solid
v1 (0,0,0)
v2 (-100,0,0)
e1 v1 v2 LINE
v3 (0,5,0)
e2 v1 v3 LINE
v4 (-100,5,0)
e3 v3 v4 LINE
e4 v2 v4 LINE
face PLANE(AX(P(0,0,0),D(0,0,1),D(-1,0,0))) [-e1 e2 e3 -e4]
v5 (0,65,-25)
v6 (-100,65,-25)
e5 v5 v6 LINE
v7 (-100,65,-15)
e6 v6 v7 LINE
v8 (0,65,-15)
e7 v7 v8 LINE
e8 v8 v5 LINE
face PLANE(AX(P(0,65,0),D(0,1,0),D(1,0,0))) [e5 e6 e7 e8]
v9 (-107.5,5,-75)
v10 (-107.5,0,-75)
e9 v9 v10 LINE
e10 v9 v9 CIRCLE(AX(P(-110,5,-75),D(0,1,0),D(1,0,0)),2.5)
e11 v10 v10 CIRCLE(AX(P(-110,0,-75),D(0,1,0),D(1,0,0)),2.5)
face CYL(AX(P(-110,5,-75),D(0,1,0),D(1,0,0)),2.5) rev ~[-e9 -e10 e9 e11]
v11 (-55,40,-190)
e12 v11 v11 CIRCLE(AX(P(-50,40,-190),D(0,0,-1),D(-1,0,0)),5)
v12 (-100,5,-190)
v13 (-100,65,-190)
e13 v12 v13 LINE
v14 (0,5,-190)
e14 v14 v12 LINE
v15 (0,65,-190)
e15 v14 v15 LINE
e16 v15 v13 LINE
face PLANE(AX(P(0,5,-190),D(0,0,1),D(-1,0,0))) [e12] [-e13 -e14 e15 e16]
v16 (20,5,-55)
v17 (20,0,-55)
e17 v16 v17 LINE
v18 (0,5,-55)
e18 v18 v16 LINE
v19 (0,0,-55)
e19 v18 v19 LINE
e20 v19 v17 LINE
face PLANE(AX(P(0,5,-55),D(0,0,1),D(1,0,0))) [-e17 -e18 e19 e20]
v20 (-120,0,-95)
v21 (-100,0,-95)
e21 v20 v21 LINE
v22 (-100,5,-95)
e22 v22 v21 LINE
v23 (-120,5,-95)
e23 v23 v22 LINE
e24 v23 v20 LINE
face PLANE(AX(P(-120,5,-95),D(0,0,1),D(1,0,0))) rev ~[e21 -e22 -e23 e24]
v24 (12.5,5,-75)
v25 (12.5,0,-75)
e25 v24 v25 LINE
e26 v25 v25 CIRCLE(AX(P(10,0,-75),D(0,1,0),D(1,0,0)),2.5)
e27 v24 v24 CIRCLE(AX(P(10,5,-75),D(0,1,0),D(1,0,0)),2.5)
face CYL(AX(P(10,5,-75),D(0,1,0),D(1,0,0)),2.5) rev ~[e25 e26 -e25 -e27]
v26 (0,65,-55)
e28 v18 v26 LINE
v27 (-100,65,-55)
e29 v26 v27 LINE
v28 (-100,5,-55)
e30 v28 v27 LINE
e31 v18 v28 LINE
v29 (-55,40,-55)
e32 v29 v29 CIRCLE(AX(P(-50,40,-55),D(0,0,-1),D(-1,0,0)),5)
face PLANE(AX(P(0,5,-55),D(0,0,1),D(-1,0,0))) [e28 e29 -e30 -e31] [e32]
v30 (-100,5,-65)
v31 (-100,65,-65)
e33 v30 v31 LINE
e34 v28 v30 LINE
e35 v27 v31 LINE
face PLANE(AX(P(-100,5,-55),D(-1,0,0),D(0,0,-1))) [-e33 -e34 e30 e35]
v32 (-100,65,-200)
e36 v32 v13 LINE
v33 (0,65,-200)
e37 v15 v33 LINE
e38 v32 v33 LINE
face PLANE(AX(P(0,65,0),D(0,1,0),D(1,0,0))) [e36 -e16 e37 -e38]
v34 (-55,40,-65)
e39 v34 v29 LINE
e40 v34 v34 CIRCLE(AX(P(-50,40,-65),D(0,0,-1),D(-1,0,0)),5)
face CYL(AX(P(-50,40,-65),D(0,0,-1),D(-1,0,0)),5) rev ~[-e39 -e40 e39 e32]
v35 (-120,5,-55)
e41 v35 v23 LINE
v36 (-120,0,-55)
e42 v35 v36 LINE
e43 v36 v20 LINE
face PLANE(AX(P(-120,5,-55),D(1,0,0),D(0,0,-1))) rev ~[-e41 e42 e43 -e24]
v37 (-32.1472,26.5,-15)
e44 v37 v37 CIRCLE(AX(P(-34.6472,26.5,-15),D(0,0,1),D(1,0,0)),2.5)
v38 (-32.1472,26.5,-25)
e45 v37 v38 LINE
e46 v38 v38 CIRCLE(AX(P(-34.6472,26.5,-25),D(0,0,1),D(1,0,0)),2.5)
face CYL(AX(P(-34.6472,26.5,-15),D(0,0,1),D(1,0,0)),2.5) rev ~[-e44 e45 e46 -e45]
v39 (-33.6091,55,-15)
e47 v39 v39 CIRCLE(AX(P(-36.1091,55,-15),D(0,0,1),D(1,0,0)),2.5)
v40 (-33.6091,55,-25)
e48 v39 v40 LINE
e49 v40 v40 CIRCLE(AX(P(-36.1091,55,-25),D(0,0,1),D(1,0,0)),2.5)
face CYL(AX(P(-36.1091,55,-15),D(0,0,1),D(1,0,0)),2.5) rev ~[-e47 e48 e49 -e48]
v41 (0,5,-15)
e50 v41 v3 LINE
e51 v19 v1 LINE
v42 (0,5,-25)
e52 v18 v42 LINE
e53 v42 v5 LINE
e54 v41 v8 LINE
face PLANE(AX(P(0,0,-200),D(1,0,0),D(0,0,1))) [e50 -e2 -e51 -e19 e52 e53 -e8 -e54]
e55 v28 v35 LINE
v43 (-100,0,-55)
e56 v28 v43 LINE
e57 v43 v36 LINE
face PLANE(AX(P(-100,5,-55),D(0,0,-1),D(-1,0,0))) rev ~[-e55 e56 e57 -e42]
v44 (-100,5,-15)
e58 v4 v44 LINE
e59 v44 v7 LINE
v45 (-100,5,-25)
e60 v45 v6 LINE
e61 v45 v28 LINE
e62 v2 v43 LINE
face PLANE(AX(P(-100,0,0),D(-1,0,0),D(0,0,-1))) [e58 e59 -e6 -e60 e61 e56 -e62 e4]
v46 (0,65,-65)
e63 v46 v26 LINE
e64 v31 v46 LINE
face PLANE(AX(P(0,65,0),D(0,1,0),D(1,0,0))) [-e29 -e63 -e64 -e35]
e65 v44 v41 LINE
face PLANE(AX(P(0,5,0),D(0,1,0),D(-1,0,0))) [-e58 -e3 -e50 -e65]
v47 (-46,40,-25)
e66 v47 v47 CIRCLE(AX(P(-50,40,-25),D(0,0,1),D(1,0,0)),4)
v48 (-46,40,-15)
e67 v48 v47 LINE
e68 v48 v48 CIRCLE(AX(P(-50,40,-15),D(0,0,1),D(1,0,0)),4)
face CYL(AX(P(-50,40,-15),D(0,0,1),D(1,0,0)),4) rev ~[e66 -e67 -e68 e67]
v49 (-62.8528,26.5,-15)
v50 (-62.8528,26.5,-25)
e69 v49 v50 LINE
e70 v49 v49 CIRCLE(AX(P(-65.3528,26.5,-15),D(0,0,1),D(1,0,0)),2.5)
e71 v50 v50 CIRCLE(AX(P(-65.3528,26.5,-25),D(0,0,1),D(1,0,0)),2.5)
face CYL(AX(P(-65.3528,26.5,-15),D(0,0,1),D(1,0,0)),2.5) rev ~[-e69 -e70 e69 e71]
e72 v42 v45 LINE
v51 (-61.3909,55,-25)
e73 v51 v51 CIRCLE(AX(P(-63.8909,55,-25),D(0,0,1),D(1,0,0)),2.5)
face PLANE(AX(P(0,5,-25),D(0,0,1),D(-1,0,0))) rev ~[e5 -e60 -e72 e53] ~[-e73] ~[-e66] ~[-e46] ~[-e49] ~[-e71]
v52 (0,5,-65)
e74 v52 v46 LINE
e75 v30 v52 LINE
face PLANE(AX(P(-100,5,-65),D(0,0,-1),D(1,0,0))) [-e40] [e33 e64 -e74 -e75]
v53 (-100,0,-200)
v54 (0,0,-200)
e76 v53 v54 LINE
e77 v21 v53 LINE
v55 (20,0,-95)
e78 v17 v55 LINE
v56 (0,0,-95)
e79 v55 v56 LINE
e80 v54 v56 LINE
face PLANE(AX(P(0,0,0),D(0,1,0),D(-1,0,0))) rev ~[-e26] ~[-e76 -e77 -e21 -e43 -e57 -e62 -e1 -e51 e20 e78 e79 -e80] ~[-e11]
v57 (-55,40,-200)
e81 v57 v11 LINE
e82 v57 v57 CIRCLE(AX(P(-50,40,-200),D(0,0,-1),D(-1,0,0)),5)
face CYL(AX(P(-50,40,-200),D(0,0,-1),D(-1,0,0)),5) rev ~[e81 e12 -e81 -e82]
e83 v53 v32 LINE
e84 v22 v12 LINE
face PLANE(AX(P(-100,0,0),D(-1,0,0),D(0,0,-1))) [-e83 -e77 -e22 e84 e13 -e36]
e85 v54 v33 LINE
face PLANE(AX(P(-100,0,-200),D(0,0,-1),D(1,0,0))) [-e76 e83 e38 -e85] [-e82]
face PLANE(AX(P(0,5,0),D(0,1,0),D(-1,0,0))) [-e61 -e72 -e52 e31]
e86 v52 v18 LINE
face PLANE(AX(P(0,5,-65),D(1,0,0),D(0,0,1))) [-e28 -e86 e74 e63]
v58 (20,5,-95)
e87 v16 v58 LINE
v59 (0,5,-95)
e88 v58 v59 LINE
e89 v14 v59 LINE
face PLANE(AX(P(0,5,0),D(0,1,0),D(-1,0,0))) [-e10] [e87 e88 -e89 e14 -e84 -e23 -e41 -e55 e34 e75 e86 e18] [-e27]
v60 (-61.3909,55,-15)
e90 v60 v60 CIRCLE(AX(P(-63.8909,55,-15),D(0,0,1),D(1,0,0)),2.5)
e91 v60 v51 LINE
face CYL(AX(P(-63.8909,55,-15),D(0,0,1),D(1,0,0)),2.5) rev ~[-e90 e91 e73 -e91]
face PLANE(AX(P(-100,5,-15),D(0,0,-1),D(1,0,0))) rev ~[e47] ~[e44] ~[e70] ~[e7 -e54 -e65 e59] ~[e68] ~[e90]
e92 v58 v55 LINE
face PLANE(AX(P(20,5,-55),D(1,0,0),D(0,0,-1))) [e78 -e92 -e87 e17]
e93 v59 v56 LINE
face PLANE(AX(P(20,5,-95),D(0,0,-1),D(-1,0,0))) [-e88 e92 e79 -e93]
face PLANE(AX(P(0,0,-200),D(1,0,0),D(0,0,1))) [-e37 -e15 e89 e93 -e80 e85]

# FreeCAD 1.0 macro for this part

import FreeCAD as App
import Part
import Sketcher
from FreeCAD import Vector


def add_polygon(sketch, points):
    """Adds a closed chain of lines whose ends are joined by coincident constraints."""
    first, n = sketch.GeometryCount, len(points)
    for a, b in zip(points, points[1:] + points[:1]):
        sketch.addGeometry(Part.LineSegment(App.Vector(*a, 0), App.Vector(*b, 0)), False)
    for i in range(n):
        sketch.addConstraint(Sketcher.Constraint("Coincident", first + i, 2, first + (i + 1) % n, 1))

doc = App.newDocument("Part")
body = doc.addObject("PartDesign::Body", "Body")

# Sketch on XZ plane
sketch1 = body.newObject("Sketcher::SketchObject", "Sketch")
sketch1.AttachmentSupport = (doc.getObject("XZ_Plane"), [""])
sketch1.MapMode = "FlatFace"
add_polygon(sketch1, [(-100, 0), (0, 0), (0, -200), (-100, -200)])  # lines 0-3
sketch1.addConstraint([
    Sketcher.Constraint("Horizontal", 0),
    Sketcher.Constraint("Vertical", 1),
    Sketcher.Constraint("Horizontal", 2),
    Sketcher.Constraint("Vertical", 3),
    Sketcher.Constraint("Coincident", 0, 2, -1, 1),
    Sketcher.Constraint("DistanceX", 0, 1, 0, 2, 100.0),
    Sketcher.Constraint("DistanceY", 1, 2, 1, 1, 200.0),
])
pad1 = body.newObject("PartDesign::Pad", "Pad")
pad1.Profile = sketch1
pad1.Length = 5
pad1.Reversed = True

# Sketch on XZ plane
sketch2 = body.newObject("Sketcher::SketchObject", "Sketch001")
sketch2.AttachmentSupport = (doc.getObject("XZ_Plane"), [""])
sketch2.MapMode = "FlatFace"
sketch2.AttachmentOffset = App.Placement(Vector(0, 0, -5), App.Rotation())
add_polygon(sketch2, [(0, -95), (0, -55), (20, -55), (20, -95)])  # lines 0-3
sketch2.addGeometry(Part.Circle(Vector(10, -75, 0), Vector(0, 0, 1), 2.5), False)  # 4
add_polygon(sketch2, [(-100, -55), (-100, -95), (-120, -95), (-120, -55)])  # lines 5-8
sketch2.addGeometry(Part.Circle(Vector(-110, -75, 0), Vector(0, 0, 1), 2.5), False)  # 9
sketch2.addConstraint([
    Sketcher.Constraint("Vertical", 0),
    Sketcher.Constraint("Horizontal", 1),
    Sketcher.Constraint("Vertical", 2),
    Sketcher.Constraint("Horizontal", 3),
    Sketcher.Constraint("Vertical", 5),
    Sketcher.Constraint("Horizontal", 6),
    Sketcher.Constraint("Vertical", 7),
    Sketcher.Constraint("Horizontal", 8),
    Sketcher.Constraint("Equal", 4, 9),
    Sketcher.Constraint("PointOnObject", 0, 2, -2),
    Sketcher.Constraint("Horizontal", 4, 3, 9, 3),
    Sketcher.Constraint("Horizontal", 3, 2, 5, 2),
    Sketcher.Constraint("Horizontal", 1, 2, 7, 2),
    Sketcher.Constraint("Equal", 3, 6),
    Sketcher.Constraint("Diameter", 4, 5.0),
    Sketcher.Constraint("DistanceX", 1, 1, 1, 2, 20.0),
    Sketcher.Constraint("DistanceY", 0, 1, 0, 2, 40.0),
    Sketcher.Constraint("DistanceY", 0, 2, -1, 1, 55.0),
    Sketcher.Constraint("DistanceY", 4, 3, 0, 2, 20.0),
    Sketcher.Constraint("DistanceX", -1, 1, 4, 3, 10.0),
    Sketcher.Constraint("DistanceX", 9, 3, -1, 1, 110.0),
    Sketcher.Constraint("DistanceX", 5, 2, -1, 1, 100.0),
])
pad2 = body.newObject("PartDesign::Pad", "Pad001")
pad2.Profile = sketch2
pad2.Length = 5

# Sketch on XZ plane
sketch3 = body.newObject("Sketcher::SketchObject", "Sketch002")
sketch3.AttachmentSupport = (doc.getObject("XZ_Plane"), [""])
sketch3.MapMode = "FlatFace"
sketch3.AttachmentOffset = App.Placement(Vector(0, 0, -5), App.Rotation())
add_polygon(sketch3, [(0, -200), (-100, -200), (-100, -190), (0, -190)])  # lines 0-3
add_polygon(sketch3, [(-100, -55), (0, -55), (0, -65), (-100, -65)])  # lines 4-7
add_polygon(sketch3, [(-100, -25), (-100, -15), (0, -15), (0, -25)])  # lines 8-11
sketch3.addConstraint([
    Sketcher.Constraint("Horizontal", 0),
    Sketcher.Constraint("Vertical", 1),
    Sketcher.Constraint("Horizontal", 2),
    Sketcher.Constraint("Vertical", 3),
    Sketcher.Constraint("Horizontal", 4),
    Sketcher.Constraint("Vertical", 5),
    Sketcher.Constraint("Horizontal", 6),
    Sketcher.Constraint("Vertical", 7),
    Sketcher.Constraint("Vertical", 8),
    Sketcher.Constraint("Horizontal", 9),
    Sketcher.Constraint("Vertical", 10),
    Sketcher.Constraint("Horizontal", 11),
    Sketcher.Constraint("PointOnObject", 2, 2, -2),
    Sketcher.Constraint("PointOnObject", 4, 2, -2),
    Sketcher.Constraint("PointOnObject", 9, 2, -2),
    Sketcher.Constraint("Vertical", 1, 2, 6, 2),
    Sketcher.Constraint("Vertical", 7, 2, 8, 2),
    Sketcher.Constraint("Equal", 3, 5),
    Sketcher.Constraint("Equal", 7, 8),
    Sketcher.Constraint("DistanceX", 0, 2, 0, 1, 100.0),
    Sketcher.Constraint("DistanceY", 1, 1, 1, 2, 10.0),
    Sketcher.Constraint("DistanceY", 2, 2, 5, 2, 125.0),
    Sketcher.Constraint("DistanceY", 4, 2, 10, 2, 30.0),
    Sketcher.Constraint("DistanceY", 0, 2, -1, 1, 200.0),
])
pad3 = body.newObject("PartDesign::Pad", "Pad002")
pad3.Profile = sketch3
pad3.Length = 60
pad3.Reversed = True

# Sketch on XY plane
sketch4 = body.newObject("Sketcher::SketchObject", "Sketch003")
sketch4.AttachmentSupport = (doc.getObject("XY_Plane"), [""])
sketch4.MapMode = "FlatFace"
sketch4.AttachmentOffset = App.Placement(Vector(0, 0, -200), App.Rotation())
sketch4.addGeometry(Part.Circle(Vector(-50, 40, 0), Vector(0, 0, 1), 5), False)
sketch4.addConstraint([
    Sketcher.Constraint("Diameter", 0, 10.0),
    Sketcher.Constraint("DistanceX", 0, 3, -1, 1, 50.0),
    Sketcher.Constraint("DistanceY", -1, 1, 0, 3, 40.0),
])
pocket1 = body.newObject("PartDesign::Pocket", "Pocket")
pocket1.Profile = sketch4
pocket1.Length = 10
pocket1.Reversed = True

# Sketch on XY plane
sketch5 = body.newObject("Sketcher::SketchObject", "Sketch004")
sketch5.AttachmentSupport = (doc.getObject("XY_Plane"), [""])
sketch5.MapMode = "FlatFace"
sketch5.AttachmentOffset = App.Placement(Vector(0, 0, -65), App.Rotation())
sketch5.addGeometry(Part.Circle(Vector(-50, 40, 0), Vector(0, 0, 1), 5), False)
sketch5.addConstraint([
    Sketcher.Constraint("Diameter", 0, 10.0),
    Sketcher.Constraint("DistanceX", 0, 3, -1, 1, 50.0),
    Sketcher.Constraint("DistanceY", -1, 1, 0, 3, 40.0),
])
pocket2 = body.newObject("PartDesign::Pocket", "Pocket001")
pocket2.Profile = sketch5
pocket2.Length = 10
pocket2.Reversed = True

# Sketch on XY plane
sketch6 = body.newObject("Sketcher::SketchObject", "Sketch005")
sketch6.AttachmentSupport = (doc.getObject("XY_Plane"), [""])
sketch6.MapMode = "FlatFace"
sketch6.AttachmentOffset = App.Placement(Vector(0, 0, -15), App.Rotation())
sketch6.addGeometry([
    Part.Circle(Vector(-50, 40, 0), Vector(0, 0, 1), 4),  # 0
    Part.Circle(Vector(-63.9, 55, 0), Vector(0, 0, 1), 2.5),  # 1
    Part.Circle(Vector(-36.1, 55, 0), Vector(0, 0, 1), 2.5),  # 2
    Part.Circle(Vector(-65.4, 26.5, 0), Vector(0, 0, 1), 2.5),  # 3
    Part.Circle(Vector(-34.6, 26.5, 0), Vector(0, 0, 1), 2.5),  # 4
], False)
sketch6.addConstraint([
    Sketcher.Constraint("Equal", 1, 2),
    Sketcher.Constraint("Equal", 2, 3),
    Sketcher.Constraint("Equal", 3, 4),
    Sketcher.Constraint("Horizontal", 1, 3, 2, 3),
    Sketcher.Constraint("Horizontal", 3, 3, 4, 3),
    Sketcher.Constraint("Diameter", 0, 8.0),
    Sketcher.Constraint("Diameter", 1, 5.0),
    Sketcher.Constraint("DistanceY", 3, 3, 1, 3, 28.5),
    Sketcher.Constraint("DistanceX", 0, 3, -1, 1, 50.0),
    Sketcher.Constraint("DistanceY", -1, 1, 0, 3, 40.0),
    Sketcher.Constraint("DistanceY", -1, 1, 1, 3, 55.0),
    Sketcher.Constraint("DistanceX", 1, 3, -1, 1, 63.891),
    Sketcher.Constraint("DistanceX", 2, 3, -1, 1, 36.109),
    Sketcher.Constraint("DistanceX", 3, 3, 1, 3, 1.462),
    Sketcher.Constraint("DistanceX", 2, 3, 4, 3, 1.462),
])
pocket3 = body.newObject("PartDesign::Pocket", "Pocket002")
pocket3.Profile = sketch6
pocket3.Length = 10

doc.recompute()
